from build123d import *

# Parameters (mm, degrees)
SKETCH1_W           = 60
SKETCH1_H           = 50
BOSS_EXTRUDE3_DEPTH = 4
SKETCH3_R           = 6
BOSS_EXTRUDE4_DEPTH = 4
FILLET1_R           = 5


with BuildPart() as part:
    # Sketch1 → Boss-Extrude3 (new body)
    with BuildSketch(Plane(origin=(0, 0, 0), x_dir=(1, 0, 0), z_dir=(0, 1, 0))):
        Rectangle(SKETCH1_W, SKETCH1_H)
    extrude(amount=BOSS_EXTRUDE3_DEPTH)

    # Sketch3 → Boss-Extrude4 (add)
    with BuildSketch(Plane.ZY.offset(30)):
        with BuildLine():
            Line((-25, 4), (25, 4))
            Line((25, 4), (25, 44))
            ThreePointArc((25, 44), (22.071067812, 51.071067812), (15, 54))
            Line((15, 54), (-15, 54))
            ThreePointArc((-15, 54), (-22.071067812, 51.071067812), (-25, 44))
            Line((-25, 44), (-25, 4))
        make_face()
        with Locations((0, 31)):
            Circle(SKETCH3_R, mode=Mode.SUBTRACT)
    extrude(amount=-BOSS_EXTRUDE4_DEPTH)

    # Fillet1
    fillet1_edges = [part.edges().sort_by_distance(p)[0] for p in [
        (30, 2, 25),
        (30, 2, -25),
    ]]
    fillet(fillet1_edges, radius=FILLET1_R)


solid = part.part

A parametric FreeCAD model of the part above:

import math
import FreeCAD as App
import Part
import Sketcher


def edges_at(feature, points):
    """Names of the edges that pass closest to the given points."""
    edges = feature.Shape.Edges
    near = lambda p: min(range(len(edges)), key=lambda i: edges[i].distToShape(Part.Vertex(*p))[0])
    return sorted({f"Edge{near(p) + 1}" for p in points})

doc = App.newDocument("Part")
params = doc.addObject("Spreadsheet::Sheet", "Params")
for row, (alias, value) in enumerate([
    ("sketch1_width", "60 mm"),
    ("sketch1_height", "50 mm"),
    ("pad1_length", "4 mm"),
    ("sketch2_diameter", "12 mm"),
    ("sketch2_radius", "10 mm"),
    ("sketch2_width", "40 mm"),
    ("sketch2_height", "50 mm"),
    ("pad2_length", "4 mm"),
    ("fillet_radius", "5 mm"),
], start=1):
    params.set(f"A{row}", alias)
    params.set(f"B{row}", "=" + value)
    params.setAlias(f"B{row}", alias)

body = doc.addObject("PartDesign::Body", "Body")

sketch1 = body.newObject("Sketcher::SketchObject", "Sketch")
sketch1.AttachmentSupport = (doc.getObject("XZ_Plane"), [""])
sketch1.MapMode = "FlatFace"
sketch1.addGeometry([
    Part.LineSegment(App.Vector(-30, -25, 0), App.Vector(-30, 25, 0)),
    Part.LineSegment(App.Vector(-30, 25, 0), App.Vector(30, 25, 0)),
    Part.LineSegment(App.Vector(30, 25, 0), App.Vector(30, -25, 0)),
    Part.LineSegment(App.Vector(30, -25, 0), App.Vector(-30, -25, 0)),
], False)
sketch1.addConstraint([
    Sketcher.Constraint("Coincident", 0, 2, 1, 1),
    Sketcher.Constraint("Coincident", 1, 2, 2, 1),
    Sketcher.Constraint("Coincident", 2, 2, 3, 1),
    Sketcher.Constraint("Coincident", 3, 2, 0, 1),
    Sketcher.Constraint("Vertical", 0),
    Sketcher.Constraint("Horizontal", 1),
    Sketcher.Constraint("Vertical", 2),
    Sketcher.Constraint("Horizontal", 3),
    Sketcher.Constraint("Symmetric", 0, 2, 2, 2, -1, 1),
    Sketcher.Constraint("DistanceX", 1, 1, 1, 2, 60.0),
    Sketcher.Constraint("DistanceY", 0, 1, 0, 2, 50.0),
])
sketch1.setExpression("Constraints[9]", "Params.sketch1_width")
sketch1.setExpression("Constraints[10]", "Params.sketch1_height")
pad1 = body.newObject("PartDesign::Pad", "Pad")
pad1.Profile = sketch1
pad1.setExpression("Length", "Params.pad1_length")
pad1.Reversed = True

sketch2 = body.newObject("Sketcher::SketchObject", "Sketch001")
sketch2.AttachmentSupport = (doc.getObject("YZ_Plane"), [""])
sketch2.MapMode = "FlatFace"
sketch2.AttachmentOffset = App.Placement(App.Vector(0, 0, -30), App.Rotation())
sketch2.addGeometry([
    Part.LineSegment(App.Vector(4, -25, 0), App.Vector(4, 25, 0)),
    Part.LineSegment(App.Vector(4, 25, 0), App.Vector(44, 25, 0)),
    Part.ArcOfCircle(Part.Circle(App.Vector(44, 15, 0), App.Vector(0, 0, 1), 10), math.radians(0), math.radians(90)),
    Part.LineSegment(App.Vector(54, 15, 0), App.Vector(54, -15, 0)),
    Part.ArcOfCircle(Part.Circle(App.Vector(44, -15, 0), App.Vector(0, 0, 1), 10), math.radians(-90), math.radians(0)),
    Part.LineSegment(App.Vector(44, -25, 0), App.Vector(4, -25, 0)),
    Part.Circle(App.Vector(31, 0, 0), App.Vector(0, 0, 1), 6),
], False)
sketch2.addConstraint([
    Sketcher.Constraint("Coincident", 0, 2, 1, 1),
    Sketcher.Constraint("Tangent", 1, 2, 2, 2),
    Sketcher.Constraint("Tangent", 2, 1, 3, 1),
    Sketcher.Constraint("Tangent", 3, 2, 4, 2),
    Sketcher.Constraint("Tangent", 4, 1, 5, 1),
    Sketcher.Constraint("Coincident", 5, 2, 0, 1),
    Sketcher.Constraint("Vertical", 0),
    Sketcher.Constraint("Horizontal", 1),
    Sketcher.Constraint("Vertical", 3),
    Sketcher.Constraint("Horizontal", 5),
    Sketcher.Constraint("Equal", 2, 4),
    Sketcher.Constraint("PointOnObject", 6, 3, -1),
    Sketcher.Constraint("Diameter", 6, 12.0),
    Sketcher.Constraint("Radius", 2, 10.0),
    Sketcher.Constraint("DistanceX", 1, 1, 1, 2, 40.0),
    Sketcher.Constraint("DistanceY", 0, 1, 0, 2, 50.0),
    Sketcher.Constraint("DistanceX", -1, 1, 2, 3, 44.0),
    Sketcher.Constraint("DistanceY", -1, 1, 2, 3, 15.0),
    Sketcher.Constraint("DistanceX", -1, 1, 6, 3, 31.0),
])
sketch2.setExpression("Constraints[12]", "Params.sketch2_diameter")
sketch2.setExpression("Constraints[13]", "Params.sketch2_radius")
sketch2.setExpression("Constraints[14]", "Params.sketch2_width")
sketch2.setExpression("Constraints[15]", "Params.sketch2_height")
pad2 = body.newObject("PartDesign::Pad", "Pad001")
pad2.Profile = sketch2
pad2.setExpression("Length", "Params.pad2_length")
doc.recompute()

fillet = body.newObject("PartDesign::Fillet", "Fillet")
fillet.Base = (pad2, edges_at(pad2, [(30, 2, 25), (30, 2, -25)]))
fillet.setExpression("Radius", "Params.fillet_radius")

doc.recompute()
